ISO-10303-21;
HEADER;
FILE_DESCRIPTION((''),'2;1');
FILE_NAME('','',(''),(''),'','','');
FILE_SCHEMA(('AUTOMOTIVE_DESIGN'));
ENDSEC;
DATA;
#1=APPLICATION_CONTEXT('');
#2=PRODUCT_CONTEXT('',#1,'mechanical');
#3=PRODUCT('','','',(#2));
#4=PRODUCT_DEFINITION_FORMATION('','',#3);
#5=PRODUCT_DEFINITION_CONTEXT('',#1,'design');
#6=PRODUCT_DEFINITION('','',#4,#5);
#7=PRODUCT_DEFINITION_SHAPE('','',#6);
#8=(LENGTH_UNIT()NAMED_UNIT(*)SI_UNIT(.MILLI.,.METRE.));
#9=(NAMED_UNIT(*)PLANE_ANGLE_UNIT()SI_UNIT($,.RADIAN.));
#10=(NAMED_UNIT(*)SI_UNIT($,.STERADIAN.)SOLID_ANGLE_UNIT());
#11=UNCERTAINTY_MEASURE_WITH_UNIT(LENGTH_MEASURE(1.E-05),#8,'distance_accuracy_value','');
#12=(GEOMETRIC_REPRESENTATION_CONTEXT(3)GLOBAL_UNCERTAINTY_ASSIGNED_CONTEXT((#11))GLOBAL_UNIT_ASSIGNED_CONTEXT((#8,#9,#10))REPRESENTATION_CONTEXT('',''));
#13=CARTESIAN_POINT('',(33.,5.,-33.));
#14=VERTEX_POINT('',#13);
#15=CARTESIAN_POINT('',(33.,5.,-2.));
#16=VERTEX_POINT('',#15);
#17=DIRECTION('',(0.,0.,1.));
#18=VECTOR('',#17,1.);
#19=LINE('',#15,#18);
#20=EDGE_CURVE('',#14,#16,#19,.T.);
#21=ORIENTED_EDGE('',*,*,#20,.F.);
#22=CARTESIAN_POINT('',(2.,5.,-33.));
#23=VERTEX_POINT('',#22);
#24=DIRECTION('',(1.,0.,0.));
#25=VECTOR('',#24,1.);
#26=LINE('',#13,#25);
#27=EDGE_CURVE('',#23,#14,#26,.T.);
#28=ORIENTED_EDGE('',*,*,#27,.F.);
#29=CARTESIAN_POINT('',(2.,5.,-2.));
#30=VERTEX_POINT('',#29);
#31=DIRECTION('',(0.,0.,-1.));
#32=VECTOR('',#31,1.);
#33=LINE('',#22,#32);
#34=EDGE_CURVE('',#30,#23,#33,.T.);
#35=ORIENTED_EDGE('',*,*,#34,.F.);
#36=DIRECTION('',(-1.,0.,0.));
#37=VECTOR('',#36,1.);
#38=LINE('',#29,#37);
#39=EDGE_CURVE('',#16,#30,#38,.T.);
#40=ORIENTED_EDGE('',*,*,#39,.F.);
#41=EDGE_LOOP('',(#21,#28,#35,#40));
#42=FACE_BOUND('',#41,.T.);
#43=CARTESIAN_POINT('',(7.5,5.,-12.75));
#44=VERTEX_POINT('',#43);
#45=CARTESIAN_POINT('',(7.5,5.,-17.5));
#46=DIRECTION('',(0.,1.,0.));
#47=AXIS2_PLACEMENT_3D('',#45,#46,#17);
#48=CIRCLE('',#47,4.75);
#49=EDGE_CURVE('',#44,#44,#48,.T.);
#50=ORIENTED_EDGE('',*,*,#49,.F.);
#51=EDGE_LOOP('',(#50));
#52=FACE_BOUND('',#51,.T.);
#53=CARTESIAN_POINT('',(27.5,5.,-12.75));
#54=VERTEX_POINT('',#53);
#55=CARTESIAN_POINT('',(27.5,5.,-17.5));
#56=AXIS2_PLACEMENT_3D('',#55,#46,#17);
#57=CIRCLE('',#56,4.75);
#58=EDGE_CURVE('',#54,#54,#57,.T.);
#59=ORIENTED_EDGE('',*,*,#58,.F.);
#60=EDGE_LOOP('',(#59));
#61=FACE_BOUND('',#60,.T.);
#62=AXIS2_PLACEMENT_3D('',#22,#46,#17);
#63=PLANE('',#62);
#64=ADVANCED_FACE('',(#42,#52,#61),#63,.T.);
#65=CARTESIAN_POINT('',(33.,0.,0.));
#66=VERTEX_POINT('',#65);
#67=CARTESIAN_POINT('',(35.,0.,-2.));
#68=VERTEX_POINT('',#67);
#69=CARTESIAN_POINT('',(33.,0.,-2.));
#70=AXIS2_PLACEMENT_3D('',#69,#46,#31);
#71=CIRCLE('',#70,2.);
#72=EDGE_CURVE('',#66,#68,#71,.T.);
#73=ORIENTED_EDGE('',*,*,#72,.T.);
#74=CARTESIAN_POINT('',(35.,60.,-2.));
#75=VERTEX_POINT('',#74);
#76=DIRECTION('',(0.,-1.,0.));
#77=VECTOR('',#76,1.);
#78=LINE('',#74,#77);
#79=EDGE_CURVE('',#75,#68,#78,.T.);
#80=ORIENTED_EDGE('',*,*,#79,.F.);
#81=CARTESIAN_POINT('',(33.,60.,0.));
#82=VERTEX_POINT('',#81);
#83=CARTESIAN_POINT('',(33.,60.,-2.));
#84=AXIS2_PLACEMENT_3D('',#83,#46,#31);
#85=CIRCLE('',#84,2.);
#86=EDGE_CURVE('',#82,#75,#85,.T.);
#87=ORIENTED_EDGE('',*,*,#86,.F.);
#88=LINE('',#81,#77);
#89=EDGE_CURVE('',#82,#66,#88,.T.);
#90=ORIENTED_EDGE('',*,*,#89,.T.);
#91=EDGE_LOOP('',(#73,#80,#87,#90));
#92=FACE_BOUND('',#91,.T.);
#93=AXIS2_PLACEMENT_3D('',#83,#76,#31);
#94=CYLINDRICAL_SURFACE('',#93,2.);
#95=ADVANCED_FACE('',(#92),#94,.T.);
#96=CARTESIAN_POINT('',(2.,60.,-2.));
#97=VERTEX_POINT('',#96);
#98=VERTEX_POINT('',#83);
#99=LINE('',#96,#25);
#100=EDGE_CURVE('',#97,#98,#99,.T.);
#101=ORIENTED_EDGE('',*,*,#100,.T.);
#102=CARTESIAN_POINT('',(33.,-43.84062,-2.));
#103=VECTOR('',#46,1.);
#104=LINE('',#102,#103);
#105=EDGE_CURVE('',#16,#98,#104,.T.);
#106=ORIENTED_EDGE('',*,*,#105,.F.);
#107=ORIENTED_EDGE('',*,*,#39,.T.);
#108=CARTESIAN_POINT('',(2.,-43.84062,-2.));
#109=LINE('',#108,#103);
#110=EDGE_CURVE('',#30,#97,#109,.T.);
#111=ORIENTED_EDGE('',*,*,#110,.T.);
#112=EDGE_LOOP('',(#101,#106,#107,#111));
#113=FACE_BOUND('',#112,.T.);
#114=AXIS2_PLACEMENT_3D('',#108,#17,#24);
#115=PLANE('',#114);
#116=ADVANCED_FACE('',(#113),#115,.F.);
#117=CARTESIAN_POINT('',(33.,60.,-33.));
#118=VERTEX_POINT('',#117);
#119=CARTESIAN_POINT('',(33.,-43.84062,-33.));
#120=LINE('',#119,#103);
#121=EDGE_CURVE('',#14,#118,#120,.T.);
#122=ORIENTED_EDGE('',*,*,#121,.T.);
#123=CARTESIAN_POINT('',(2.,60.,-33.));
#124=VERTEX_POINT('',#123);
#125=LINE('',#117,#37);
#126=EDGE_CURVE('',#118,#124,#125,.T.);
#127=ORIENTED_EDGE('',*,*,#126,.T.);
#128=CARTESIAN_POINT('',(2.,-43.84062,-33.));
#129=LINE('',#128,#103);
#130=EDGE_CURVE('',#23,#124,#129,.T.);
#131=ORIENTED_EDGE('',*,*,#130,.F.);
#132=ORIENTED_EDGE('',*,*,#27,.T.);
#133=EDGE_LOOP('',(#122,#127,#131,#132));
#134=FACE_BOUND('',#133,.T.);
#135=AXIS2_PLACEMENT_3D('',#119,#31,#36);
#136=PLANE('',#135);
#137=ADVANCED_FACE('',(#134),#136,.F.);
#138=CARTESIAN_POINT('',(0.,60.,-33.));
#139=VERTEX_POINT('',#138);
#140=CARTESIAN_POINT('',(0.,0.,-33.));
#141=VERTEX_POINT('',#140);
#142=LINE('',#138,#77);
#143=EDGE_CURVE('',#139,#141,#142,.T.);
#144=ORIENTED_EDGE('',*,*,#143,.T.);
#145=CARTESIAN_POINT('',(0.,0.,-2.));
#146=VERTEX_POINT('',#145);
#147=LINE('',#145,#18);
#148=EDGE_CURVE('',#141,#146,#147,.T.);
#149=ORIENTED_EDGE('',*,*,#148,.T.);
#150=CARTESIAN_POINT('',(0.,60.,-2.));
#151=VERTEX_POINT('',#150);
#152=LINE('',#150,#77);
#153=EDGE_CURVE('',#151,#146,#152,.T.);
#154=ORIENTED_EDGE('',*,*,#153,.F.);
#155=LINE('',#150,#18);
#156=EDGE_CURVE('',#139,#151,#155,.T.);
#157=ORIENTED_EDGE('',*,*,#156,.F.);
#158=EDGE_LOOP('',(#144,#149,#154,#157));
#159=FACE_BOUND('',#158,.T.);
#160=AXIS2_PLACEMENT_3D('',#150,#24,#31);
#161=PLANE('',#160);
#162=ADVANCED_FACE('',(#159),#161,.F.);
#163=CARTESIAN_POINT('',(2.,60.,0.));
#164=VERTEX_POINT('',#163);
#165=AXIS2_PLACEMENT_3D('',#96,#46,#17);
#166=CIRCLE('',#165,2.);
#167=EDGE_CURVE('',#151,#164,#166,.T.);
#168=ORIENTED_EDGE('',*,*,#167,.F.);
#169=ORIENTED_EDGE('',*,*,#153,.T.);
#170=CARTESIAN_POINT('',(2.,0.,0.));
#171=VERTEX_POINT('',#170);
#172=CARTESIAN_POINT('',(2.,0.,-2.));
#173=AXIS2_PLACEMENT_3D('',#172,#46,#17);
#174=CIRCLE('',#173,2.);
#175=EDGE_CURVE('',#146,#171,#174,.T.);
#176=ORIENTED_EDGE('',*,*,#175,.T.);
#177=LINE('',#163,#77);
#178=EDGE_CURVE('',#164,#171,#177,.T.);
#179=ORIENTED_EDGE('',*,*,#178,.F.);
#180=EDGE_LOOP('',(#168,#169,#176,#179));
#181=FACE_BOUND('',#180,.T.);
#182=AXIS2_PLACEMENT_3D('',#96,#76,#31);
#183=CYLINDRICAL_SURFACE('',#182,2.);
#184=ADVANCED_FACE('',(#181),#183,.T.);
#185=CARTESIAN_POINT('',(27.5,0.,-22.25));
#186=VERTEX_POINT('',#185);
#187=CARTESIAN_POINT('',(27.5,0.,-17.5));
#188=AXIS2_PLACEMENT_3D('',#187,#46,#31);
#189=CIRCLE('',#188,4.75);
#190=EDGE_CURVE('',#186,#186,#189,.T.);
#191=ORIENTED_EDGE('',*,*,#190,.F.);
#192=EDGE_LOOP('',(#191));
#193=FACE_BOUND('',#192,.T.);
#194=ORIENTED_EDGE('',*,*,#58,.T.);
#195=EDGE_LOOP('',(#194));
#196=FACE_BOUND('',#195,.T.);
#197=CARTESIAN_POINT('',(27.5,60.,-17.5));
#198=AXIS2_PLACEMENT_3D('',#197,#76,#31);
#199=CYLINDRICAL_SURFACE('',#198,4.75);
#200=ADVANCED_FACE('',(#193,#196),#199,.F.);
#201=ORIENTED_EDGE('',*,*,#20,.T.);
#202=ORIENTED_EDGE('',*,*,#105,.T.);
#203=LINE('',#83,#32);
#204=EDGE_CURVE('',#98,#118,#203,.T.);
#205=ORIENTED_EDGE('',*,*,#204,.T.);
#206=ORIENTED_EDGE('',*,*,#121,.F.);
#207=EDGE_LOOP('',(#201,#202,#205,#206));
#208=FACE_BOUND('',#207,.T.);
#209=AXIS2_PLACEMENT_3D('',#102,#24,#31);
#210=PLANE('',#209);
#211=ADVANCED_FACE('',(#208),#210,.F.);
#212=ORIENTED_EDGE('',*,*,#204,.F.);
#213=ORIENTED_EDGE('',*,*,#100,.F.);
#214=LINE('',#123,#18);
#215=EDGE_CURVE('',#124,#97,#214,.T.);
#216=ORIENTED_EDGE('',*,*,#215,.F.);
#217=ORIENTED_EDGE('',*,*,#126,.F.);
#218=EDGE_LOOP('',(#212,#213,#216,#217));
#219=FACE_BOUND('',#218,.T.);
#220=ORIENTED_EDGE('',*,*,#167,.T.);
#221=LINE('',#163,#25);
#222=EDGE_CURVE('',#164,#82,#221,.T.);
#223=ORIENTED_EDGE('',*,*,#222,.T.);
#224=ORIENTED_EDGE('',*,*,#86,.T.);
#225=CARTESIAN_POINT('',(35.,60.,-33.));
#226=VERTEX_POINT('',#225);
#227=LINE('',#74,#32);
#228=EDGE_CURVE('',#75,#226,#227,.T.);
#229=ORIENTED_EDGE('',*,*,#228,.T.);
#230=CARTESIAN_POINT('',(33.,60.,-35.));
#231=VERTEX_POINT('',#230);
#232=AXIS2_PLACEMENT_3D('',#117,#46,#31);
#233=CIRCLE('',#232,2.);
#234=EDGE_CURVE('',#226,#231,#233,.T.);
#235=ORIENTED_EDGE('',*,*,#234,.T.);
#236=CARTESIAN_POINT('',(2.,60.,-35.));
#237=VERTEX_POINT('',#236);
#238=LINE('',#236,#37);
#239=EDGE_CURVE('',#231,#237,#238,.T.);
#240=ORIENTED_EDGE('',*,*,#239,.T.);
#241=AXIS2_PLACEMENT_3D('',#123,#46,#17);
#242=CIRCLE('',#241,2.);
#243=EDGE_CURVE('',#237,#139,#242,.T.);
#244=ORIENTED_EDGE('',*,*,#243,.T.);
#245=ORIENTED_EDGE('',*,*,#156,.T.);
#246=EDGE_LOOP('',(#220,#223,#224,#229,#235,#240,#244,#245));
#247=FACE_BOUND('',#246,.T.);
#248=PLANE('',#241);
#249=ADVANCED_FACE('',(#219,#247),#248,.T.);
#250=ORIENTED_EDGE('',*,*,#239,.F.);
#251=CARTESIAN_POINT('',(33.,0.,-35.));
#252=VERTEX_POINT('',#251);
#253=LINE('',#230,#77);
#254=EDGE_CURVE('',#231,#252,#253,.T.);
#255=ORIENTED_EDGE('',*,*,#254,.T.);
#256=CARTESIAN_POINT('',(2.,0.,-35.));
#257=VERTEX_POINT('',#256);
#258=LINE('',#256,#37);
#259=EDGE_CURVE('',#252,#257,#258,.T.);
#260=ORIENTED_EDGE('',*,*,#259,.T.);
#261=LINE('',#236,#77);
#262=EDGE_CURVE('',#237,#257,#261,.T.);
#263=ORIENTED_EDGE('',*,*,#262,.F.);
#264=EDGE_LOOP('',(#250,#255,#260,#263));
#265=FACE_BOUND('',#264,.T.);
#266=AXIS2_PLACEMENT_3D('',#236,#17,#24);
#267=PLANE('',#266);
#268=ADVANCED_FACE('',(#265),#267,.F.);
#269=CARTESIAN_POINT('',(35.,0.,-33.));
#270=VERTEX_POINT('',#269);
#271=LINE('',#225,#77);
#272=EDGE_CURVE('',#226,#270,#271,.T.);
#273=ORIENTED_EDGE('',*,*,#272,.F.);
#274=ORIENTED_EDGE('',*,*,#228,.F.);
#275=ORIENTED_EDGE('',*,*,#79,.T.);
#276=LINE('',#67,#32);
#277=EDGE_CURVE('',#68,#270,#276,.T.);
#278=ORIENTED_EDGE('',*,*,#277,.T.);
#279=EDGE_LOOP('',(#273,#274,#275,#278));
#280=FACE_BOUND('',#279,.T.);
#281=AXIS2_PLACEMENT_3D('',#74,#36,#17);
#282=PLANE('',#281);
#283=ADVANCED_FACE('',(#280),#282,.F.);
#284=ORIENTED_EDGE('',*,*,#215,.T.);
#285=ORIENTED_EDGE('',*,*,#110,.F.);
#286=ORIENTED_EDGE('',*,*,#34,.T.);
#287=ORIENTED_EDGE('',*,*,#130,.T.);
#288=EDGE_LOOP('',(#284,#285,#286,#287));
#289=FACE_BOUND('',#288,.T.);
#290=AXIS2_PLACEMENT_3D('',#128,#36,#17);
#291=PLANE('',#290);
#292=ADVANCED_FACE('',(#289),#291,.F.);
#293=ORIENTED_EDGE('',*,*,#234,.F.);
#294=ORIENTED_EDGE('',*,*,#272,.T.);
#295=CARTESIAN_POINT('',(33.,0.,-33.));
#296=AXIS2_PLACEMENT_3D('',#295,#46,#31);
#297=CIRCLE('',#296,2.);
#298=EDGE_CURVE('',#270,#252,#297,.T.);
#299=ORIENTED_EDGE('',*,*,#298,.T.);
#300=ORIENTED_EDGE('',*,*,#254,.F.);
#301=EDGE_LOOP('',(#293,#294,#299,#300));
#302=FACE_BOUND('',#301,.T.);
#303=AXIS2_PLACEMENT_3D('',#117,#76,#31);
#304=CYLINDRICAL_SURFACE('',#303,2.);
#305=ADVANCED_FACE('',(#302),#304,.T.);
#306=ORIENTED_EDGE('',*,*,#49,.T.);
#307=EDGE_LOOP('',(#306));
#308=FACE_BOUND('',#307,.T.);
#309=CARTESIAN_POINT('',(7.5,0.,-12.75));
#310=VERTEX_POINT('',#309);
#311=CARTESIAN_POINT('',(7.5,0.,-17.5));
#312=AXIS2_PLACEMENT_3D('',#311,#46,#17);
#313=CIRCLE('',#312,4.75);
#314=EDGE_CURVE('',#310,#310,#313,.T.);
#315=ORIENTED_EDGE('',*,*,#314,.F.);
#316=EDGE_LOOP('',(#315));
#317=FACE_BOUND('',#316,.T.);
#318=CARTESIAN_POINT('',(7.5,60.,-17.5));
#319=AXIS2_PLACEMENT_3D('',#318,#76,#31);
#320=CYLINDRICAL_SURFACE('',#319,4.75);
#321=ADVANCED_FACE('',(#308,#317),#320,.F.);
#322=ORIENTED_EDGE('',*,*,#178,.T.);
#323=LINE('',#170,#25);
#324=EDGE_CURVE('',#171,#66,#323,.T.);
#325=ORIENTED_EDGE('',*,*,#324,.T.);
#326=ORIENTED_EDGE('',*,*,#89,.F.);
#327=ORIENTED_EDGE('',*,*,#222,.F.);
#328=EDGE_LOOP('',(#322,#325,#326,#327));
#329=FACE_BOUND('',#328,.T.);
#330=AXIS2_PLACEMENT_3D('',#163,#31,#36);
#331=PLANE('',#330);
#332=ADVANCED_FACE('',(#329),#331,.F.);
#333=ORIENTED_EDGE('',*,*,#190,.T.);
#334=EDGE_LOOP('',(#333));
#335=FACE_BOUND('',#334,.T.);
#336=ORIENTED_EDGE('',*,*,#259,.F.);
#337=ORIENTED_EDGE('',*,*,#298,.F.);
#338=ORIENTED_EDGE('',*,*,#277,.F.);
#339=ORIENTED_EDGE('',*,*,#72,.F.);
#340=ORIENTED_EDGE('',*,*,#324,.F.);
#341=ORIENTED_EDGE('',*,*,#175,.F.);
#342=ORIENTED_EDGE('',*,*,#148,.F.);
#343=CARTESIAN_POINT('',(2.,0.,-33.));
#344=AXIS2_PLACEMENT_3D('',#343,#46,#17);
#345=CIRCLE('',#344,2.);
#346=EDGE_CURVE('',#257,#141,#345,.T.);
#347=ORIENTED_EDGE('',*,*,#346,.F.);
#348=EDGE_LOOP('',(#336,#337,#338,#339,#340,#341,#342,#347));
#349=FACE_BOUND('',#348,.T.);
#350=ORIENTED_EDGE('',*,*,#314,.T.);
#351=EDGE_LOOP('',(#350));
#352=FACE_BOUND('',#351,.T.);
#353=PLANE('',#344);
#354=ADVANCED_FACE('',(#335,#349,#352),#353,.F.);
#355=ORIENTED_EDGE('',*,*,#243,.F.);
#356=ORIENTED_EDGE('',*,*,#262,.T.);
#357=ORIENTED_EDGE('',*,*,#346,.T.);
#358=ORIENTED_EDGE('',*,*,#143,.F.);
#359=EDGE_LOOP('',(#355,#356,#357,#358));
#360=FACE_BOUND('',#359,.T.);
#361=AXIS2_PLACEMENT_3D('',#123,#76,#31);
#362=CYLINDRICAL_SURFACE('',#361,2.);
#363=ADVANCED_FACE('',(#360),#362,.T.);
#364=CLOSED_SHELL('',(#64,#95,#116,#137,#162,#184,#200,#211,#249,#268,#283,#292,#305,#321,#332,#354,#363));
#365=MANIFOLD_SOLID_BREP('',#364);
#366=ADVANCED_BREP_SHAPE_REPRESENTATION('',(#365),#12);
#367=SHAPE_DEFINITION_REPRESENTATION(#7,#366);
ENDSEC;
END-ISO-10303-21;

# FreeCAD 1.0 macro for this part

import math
import FreeCAD as App
import Part
import Sketcher
from FreeCAD import Vector
Q = App.Units.Quantity

doc = App.newDocument("Part")
params = doc.addObject("Spreadsheet::Sheet", "Params")
for row, (alias, value) in enumerate([
    ("sketch1_radius", "2 mm"),
    ("sketch1_diameter", "9.5 mm"),
    ("sketch1_width", "31 mm"),
    ("pad1_length", "60 mm"),
    ("sketch2_width", "31 mm"),
    ("pocket1_length", "55 mm"),
], start=1):
    params.set(f"A{row}", alias)
    params.set(f"B{row}", "=" + value)
    params.setAlias(f"B{row}", alias)

body = doc.addObject("PartDesign::Body", "Body")

# Sketch on XZ plane
sketch1 = doc.addObject("Sketcher::SketchObject", "Sketch")
body.addObject(sketch1)
sketch1.AttachmentSupport = (doc.XZ_Plane, [""])
sketch1.MapMode = "FlatFace"
sketch1.addGeometry(Part.LineSegment(Vector(2, 0, 0), Vector(33, 0, 0)), False)
sketch1.addGeometry(Part.ArcOfCircle(Part.Circle(Vector(33, -2, 0), Vector(0, 0, 1), 2), math.radians(0), math.radians(90)), False)
sketch1.addGeometry(Part.LineSegment(Vector(35, -2, 0), Vector(35, -33, 0)), False)
sketch1.addGeometry(Part.ArcOfCircle(Part.Circle(Vector(33, -33, 0), Vector(0, 0, 1), 2), math.radians(-90), math.radians(0)), False)
sketch1.addGeometry(Part.LineSegment(Vector(33, -35, 0), Vector(2, -35, 0)), False)
sketch1.addGeometry(Part.ArcOfCircle(Part.Circle(Vector(2, -33, 0), Vector(0, 0, 1), 2), math.radians(-180), math.radians(-90)), False)
sketch1.addGeometry(Part.LineSegment(Vector(0, -33, 0), Vector(0, -2, 0)), False)
sketch1.addGeometry(Part.ArcOfCircle(Part.Circle(Vector(2, -2, 0), Vector(0, 0, 1), 2), math.radians(90), math.radians(180)), False)
sketch1.addGeometry(Part.Circle(Vector(7.5, -17.5, 0), Vector(0, 0, 1), 4.8), False)
sketch1.addGeometry(Part.Circle(Vector(27.5, -17.5, 0), Vector(0, 0, 1), 4.8), False)
sketch1.addConstraint(Sketcher.Constraint("Tangent", 0, 2, 1, 2))
sketch1.addConstraint(Sketcher.Constraint("Tangent", 1, 1, 2, 1))
sketch1.addConstraint(Sketcher.Constraint("Tangent", 2, 2, 3, 2))
sketch1.addConstraint(Sketcher.Constraint("Tangent", 3, 1, 4, 1))
sketch1.addConstraint(Sketcher.Constraint("Tangent", 4, 2, 5, 2))
sketch1.addConstraint(Sketcher.Constraint("Tangent", 5, 1, 6, 1))
sketch1.addConstraint(Sketcher.Constraint("Tangent", 6, 2, 7, 2))
sketch1.addConstraint(Sketcher.Constraint("Tangent", 7, 1, 0, 1))
sketch1.addConstraint(Sketcher.Constraint("Horizontal", 0))
sketch1.addConstraint(Sketcher.Constraint("Vertical", 2))
sketch1.addConstraint(Sketcher.Constraint("Horizontal", 4))
sketch1.addConstraint(Sketcher.Constraint("Vertical", 6))
sketch1.addConstraint(Sketcher.Constraint("Equal", 1, 3))
sketch1.addConstraint(Sketcher.Constraint("Equal", 3, 5))
sketch1.addConstraint(Sketcher.Constraint("Equal", 5, 7))
sketch1.addConstraint(Sketcher.Constraint("Equal", 8, 9))
sketch1.addConstraint(Sketcher.Constraint("PointOnObject", 0, 2, -1))
sketch1.addConstraint(Sketcher.Constraint("PointOnObject", 5, 1, -2))
sketch1.addConstraint(Sketcher.Constraint("Horizontal", 8, 3, 9, 3))
sketch1.addConstraint(Sketcher.Constraint("Equal", 4, 2))
sketch1.addConstraint(Sketcher.Constraint("Radius", 1, Q("2 mm")))
sketch1.addConstraint(Sketcher.Constraint("Diameter", 8, Q("9.5 mm")))
sketch1.addConstraint(Sketcher.Constraint("DistanceX", 0, 1, 0, 2, Q("31 mm")))
sketch1.addConstraint(Sketcher.Constraint("DistanceX", 8, 3, 9, 3, Q("20 mm")))
sketch1.addConstraint(Sketcher.Constraint("DistanceX", -1, 1, 8, 3, Q("7.5 mm")))
sketch1.addConstraint(Sketcher.Constraint("DistanceY", 8, 3, -1, 1, Q("17.5 mm")))
sketch1.setExpression("Constraints[20]", "Params.sketch1_radius")
sketch1.setExpression("Constraints[21]", "Params.sketch1_diameter")
sketch1.setExpression("Constraints[22]", "Params.sketch1_width")
pad1 = doc.addObject("PartDesign::Pad", "Pad")
body.addObject(pad1)
pad1.Profile = sketch1
pad1.setExpression("Length", "Params.pad1_length")
pad1.Reversed = True

# Sketch on XZ plane
sketch2 = doc.addObject("Sketcher::SketchObject", "Sketch001")
body.addObject(sketch2)
sketch2.AttachmentSupport = (doc.XZ_Plane, [""])
sketch2.MapMode = "FlatFace"
sketch2.AttachmentOffset = App.Placement(Vector(0, 0, -60), App.Rotation())
sketch2.addGeometry(Part.LineSegment(Vector(2, -33, 0), Vector(2, -2, 0)), False)
sketch2.addGeometry(Part.LineSegment(Vector(2, -2, 0), Vector(33, -2, 0)), False)
sketch2.addGeometry(Part.LineSegment(Vector(33, -2, 0), Vector(33, -33, 0)), False)
sketch2.addGeometry(Part.LineSegment(Vector(33, -33, 0), Vector(2, -33, 0)), False)
sketch2.addConstraint(Sketcher.Constraint("Coincident", 0, 2, 1, 1))
sketch2.addConstraint(Sketcher.Constraint("Coincident", 1, 2, 2, 1))
sketch2.addConstraint(Sketcher.Constraint("Coincident", 2, 2, 3, 1))
sketch2.addConstraint(Sketcher.Constraint("Coincident", 3, 2, 0, 1))
sketch2.addConstraint(Sketcher.Constraint("Vertical", 0))
sketch2.addConstraint(Sketcher.Constraint("Horizontal", 1))
sketch2.addConstraint(Sketcher.Constraint("Vertical", 2))
sketch2.addConstraint(Sketcher.Constraint("Horizontal", 3))
sketch2.addConstraint(Sketcher.Constraint("Equal", 3, 0))
sketch2.addConstraint(Sketcher.Constraint("DistanceX", 1, 1, 1, 2, Q("31 mm")))
sketch2.addConstraint(Sketcher.Constraint("DistanceX", -1, 1, 0, 2, Q("2 mm")))
sketch2.addConstraint(Sketcher.Constraint("DistanceY", 0, 2, -1, 1, Q("2 mm")))
sketch2.setExpression("Constraints[9]", "Params.sketch2_width")
pocket1 = doc.addObject("PartDesign::Pocket", "Pocket")
body.addObject(pocket1)
pocket1.Profile = sketch2
pocket1.setExpression("Length", "Params.pocket1_length")
pocket1.Reversed = True

doc.recompute()
